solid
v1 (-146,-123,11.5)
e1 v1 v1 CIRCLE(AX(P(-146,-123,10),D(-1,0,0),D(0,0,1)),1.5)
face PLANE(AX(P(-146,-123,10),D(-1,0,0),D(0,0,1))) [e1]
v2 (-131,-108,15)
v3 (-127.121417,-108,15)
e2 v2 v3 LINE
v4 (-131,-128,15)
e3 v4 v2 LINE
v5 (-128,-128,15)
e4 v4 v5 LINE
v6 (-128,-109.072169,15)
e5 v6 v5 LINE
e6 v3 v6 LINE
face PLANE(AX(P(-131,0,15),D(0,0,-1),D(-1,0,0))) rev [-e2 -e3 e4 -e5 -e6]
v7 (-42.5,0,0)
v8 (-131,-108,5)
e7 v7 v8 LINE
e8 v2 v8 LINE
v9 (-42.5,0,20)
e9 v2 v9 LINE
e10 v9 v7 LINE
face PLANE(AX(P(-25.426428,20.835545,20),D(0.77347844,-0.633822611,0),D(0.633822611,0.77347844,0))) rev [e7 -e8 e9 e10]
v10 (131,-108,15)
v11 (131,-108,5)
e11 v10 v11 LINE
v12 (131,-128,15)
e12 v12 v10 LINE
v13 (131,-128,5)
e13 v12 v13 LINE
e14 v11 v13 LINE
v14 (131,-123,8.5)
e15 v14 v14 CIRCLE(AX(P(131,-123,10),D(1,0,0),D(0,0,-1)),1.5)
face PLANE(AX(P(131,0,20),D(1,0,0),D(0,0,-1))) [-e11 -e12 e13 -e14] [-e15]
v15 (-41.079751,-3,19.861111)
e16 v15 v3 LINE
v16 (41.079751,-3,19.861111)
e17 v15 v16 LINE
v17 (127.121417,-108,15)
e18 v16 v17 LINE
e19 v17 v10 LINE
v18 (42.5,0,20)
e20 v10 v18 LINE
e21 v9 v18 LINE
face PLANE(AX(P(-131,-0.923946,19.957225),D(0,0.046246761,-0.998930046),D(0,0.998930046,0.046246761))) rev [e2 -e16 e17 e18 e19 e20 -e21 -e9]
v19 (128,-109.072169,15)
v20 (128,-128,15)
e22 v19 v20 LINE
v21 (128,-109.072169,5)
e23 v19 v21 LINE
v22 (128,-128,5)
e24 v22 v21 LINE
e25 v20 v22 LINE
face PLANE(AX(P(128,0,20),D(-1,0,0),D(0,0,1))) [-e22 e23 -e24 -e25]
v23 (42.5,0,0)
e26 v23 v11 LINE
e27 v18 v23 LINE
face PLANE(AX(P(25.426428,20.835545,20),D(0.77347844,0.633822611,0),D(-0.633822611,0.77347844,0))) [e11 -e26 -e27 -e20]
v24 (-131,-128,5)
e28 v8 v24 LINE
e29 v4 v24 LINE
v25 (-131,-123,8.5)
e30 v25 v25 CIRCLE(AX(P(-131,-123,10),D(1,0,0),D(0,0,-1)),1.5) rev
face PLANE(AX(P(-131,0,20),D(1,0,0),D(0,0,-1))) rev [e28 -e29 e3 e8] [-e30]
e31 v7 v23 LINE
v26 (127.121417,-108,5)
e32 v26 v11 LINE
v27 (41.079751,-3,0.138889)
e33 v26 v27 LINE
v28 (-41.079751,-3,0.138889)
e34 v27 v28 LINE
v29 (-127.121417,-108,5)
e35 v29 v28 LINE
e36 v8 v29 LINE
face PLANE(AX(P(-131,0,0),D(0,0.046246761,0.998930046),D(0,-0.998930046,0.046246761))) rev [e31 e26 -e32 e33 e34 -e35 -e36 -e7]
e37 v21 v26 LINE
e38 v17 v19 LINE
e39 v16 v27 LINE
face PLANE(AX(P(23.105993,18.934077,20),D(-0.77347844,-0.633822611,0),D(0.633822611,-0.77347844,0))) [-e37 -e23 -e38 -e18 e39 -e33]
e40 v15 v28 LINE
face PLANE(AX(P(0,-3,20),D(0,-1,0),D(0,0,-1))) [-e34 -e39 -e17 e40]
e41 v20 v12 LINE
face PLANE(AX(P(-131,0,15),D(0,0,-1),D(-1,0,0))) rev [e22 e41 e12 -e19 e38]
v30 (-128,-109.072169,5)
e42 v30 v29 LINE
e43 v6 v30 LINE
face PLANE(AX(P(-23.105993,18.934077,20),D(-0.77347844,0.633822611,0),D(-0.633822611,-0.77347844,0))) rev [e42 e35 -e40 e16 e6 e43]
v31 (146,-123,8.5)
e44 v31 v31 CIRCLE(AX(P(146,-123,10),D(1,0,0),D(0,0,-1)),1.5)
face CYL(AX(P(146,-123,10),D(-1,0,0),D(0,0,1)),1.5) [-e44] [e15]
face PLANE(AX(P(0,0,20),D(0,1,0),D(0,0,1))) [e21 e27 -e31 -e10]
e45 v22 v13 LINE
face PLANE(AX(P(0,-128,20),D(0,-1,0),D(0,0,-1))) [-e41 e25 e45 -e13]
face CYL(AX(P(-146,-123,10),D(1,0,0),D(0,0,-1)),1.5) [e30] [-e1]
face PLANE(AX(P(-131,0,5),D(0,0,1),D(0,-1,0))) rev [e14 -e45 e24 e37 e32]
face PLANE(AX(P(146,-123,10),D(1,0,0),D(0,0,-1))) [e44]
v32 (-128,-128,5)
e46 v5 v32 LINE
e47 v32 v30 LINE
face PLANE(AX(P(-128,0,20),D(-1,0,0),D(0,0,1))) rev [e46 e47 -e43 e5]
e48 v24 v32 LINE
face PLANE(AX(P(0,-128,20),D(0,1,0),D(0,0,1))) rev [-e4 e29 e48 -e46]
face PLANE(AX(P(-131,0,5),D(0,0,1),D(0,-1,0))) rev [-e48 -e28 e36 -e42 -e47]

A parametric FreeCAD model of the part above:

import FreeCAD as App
import Part
import Sketcher
from FreeCAD import Vector

doc = App.newDocument("Part")
body = doc.addObject("PartDesign::Body", "Body")

# Sketch on XY plane
sketch1 = body.newObject("Sketcher::SketchObject", "Sketch")
sketch1.AttachmentSupport = (doc.getObject("XY_Plane"), [""])
sketch1.MapMode = "FlatFace"
sketch1.addGeometry(Part.LineSegment(Vector(-42.5, 0, 0), Vector(-131, -108, 0)), False)
sketch1.addGeometry(Part.LineSegment(Vector(-131, -108, 0), Vector(-131, -128, 0)), False)
sketch1.addGeometry(Part.LineSegment(Vector(-131, -128, 0), Vector(-128, -128, 0)), False)
sketch1.addGeometry(Part.LineSegment(Vector(-128, -128, 0), Vector(-128, -109.1, 0)), False)
sketch1.addGeometry(Part.LineSegment(Vector(-128, -109.1, 0), Vector(-41.1, -3, 0)), False)
sketch1.addGeometry(Part.LineSegment(Vector(-41.1, -3, 0), Vector(41.1, -3, 0)), False)
sketch1.addGeometry(Part.LineSegment(Vector(41.1, -3, 0), Vector(128, -109.1, 0)), False)
sketch1.addGeometry(Part.LineSegment(Vector(128, -109.1, 0), Vector(128, -128, 0)), False)
sketch1.addGeometry(Part.LineSegment(Vector(128, -128, 0), Vector(131, -128, 0)), False)
sketch1.addGeometry(Part.LineSegment(Vector(131, -128, 0), Vector(131, -108, 0)), False)
sketch1.addGeometry(Part.LineSegment(Vector(131, -108, 0), Vector(42.5, 0, 0)), False)
sketch1.addGeometry(Part.LineSegment(Vector(42.5, 0, 0), Vector(-42.5, 0, 0)), False)
sketch1.addConstraint(Sketcher.Constraint("Coincident", 0, 2, 1, 1))
sketch1.addConstraint(Sketcher.Constraint("Coincident", 1, 2, 2, 1))
sketch1.addConstraint(Sketcher.Constraint("Coincident", 2, 2, 3, 1))
sketch1.addConstraint(Sketcher.Constraint("Coincident", 3, 2, 4, 1))
sketch1.addConstraint(Sketcher.Constraint("Coincident", 4, 2, 5, 1))
sketch1.addConstraint(Sketcher.Constraint("Coincident", 5, 2, 6, 1))
sketch1.addConstraint(Sketcher.Constraint("Coincident", 6, 2, 7, 1))
sketch1.addConstraint(Sketcher.Constraint("Coincident", 7, 2, 8, 1))
sketch1.addConstraint(Sketcher.Constraint("Coincident", 8, 2, 9, 1))
sketch1.addConstraint(Sketcher.Constraint("Coincident", 9, 2, 10, 1))
sketch1.addConstraint(Sketcher.Constraint("Coincident", 10, 2, 11, 1))
sketch1.addConstraint(Sketcher.Constraint("Coincident", 11, 2, 0, 1))
sketch1.addConstraint(Sketcher.Constraint("Vertical", 1))
sketch1.addConstraint(Sketcher.Constraint("Horizontal", 2))
sketch1.addConstraint(Sketcher.Constraint("Vertical", 3))
sketch1.addConstraint(Sketcher.Constraint("Horizontal", 5))
sketch1.addConstraint(Sketcher.Constraint("Vertical", 7))
sketch1.addConstraint(Sketcher.Constraint("Horizontal", 8))
sketch1.addConstraint(Sketcher.Constraint("Vertical", 9))
sketch1.addConstraint(Sketcher.Constraint("Horizontal", 11))
sketch1.addConstraint(Sketcher.Constraint("Symmetric", 10, 2, 11, 2, -1, 1))
sketch1.addConstraint(Sketcher.Constraint("Symmetric", 3, 2, 6, 2, -2))
sketch1.addConstraint(Sketcher.Constraint("Symmetric", 1, 2, 8, 2, -2))
sketch1.addConstraint(Sketcher.Constraint("Parallel", 0, 4))
sketch1.addConstraint(Sketcher.Constraint("Parallel", 6, 10))
sketch1.addConstraint(Sketcher.Constraint("Horizontal", 0, 2, 9, 2))
sketch1.addConstraint(Sketcher.Constraint("DistanceX", 2, 1, 2, 2, 3.0))
sketch1.addConstraint(Sketcher.Constraint("DistanceX", 11, 2, 11, 1, 85.0))
sketch1.addConstraint(Sketcher.Constraint("DistanceY", 1, 2, 1, 1, 20.0))
sketch1.addConstraint(Sketcher.Constraint("DistanceX", 0, 2, -1, 1, 131.0))
sketch1.addConstraint(Sketcher.Constraint("DistanceY", 0, 2, -1, 1, 108.0))
sketch1.addConstraint(Sketcher.Constraint("DistanceY", 4, 2, -1, 1, 3.0))
sketch1.addConstraint(Sketcher.Constraint("DistanceX", 5, 1, 5, 2, 82.159502))
pad1 = body.newObject("PartDesign::Pad", "Pad")
pad1.Profile = sketch1
pad1.Length = 20

# Sketch on YZ plane
sketch2 = body.newObject("Sketcher::SketchObject", "Sketch001")
sketch2.AttachmentSupport = (doc.getObject("YZ_Plane"), [""])
sketch2.MapMode = "FlatFace"
sketch2.AttachmentOffset = App.Placement(Vector(0, 0, 131), App.Rotation())
sketch2.addGeometry(Part.LineSegment(Vector(-128, 20, 0), Vector(-128, 15, 0)), False)
sketch2.addGeometry(Part.LineSegment(Vector(-128, 15, 0), Vector(-108, 15, 0)), False)
sketch2.addGeometry(Part.LineSegment(Vector(-108, 15, 0), Vector(0, 20, 0)), False)
sketch2.addGeometry(Part.LineSegment(Vector(0, 20, 0), Vector(-128, 20, 0)), False)
sketch2.addGeometry(Part.LineSegment(Vector(0, 0, 0), Vector(-108, 5, 0)), False)
sketch2.addGeometry(Part.LineSegment(Vector(-108, 5, 0), Vector(-128, 5, 0)), False)
sketch2.addGeometry(Part.LineSegment(Vector(-128, 5, 0), Vector(-128, 0, 0)), False)
sketch2.addGeometry(Part.LineSegment(Vector(-128, 0, 0), Vector(0, 0, 0)), False)
sketch2.addConstraint(Sketcher.Constraint("Coincident", 0, 2, 1, 1))
sketch2.addConstraint(Sketcher.Constraint("Coincident", 1, 2, 2, 1))
sketch2.addConstraint(Sketcher.Constraint("Coincident", 2, 2, 3, 1))
sketch2.addConstraint(Sketcher.Constraint("Coincident", 3, 2, 0, 1))
sketch2.addConstraint(Sketcher.Constraint("Coincident", 4, 2, 5, 1))
sketch2.addConstraint(Sketcher.Constraint("Coincident", 5, 2, 6, 1))
sketch2.addConstraint(Sketcher.Constraint("Coincident", 6, 2, 7, 1))
sketch2.addConstraint(Sketcher.Constraint("Coincident", 7, 2, 4, 1))
sketch2.addConstraint(Sketcher.Constraint("Vertical", 0))
sketch2.addConstraint(Sketcher.Constraint("Horizontal", 1))
sketch2.addConstraint(Sketcher.Constraint("Horizontal", 3))
sketch2.addConstraint(Sketcher.Constraint("Horizontal", 5))
sketch2.addConstraint(Sketcher.Constraint("Vertical", 6))
sketch2.addConstraint(Sketcher.Constraint("Horizontal", 7))
sketch2.addConstraint(Sketcher.Constraint("Coincident", 7, 2, -1, 1))
sketch2.addConstraint(Sketcher.Constraint("PointOnObject", 2, 2, -2))
sketch2.addConstraint(Sketcher.Constraint("Vertical", 1, 2, 4, 2))
sketch2.addConstraint(Sketcher.Constraint("Vertical", 3, 2, 5, 2))
sketch2.addConstraint(Sketcher.Constraint("Equal", 0, 6))
sketch2.addConstraint(Sketcher.Constraint("DistanceX", 1, 1, 1, 2, 20.0))
sketch2.addConstraint(Sketcher.Constraint("DistanceX", 3, 2, 3, 1, 128.0))
sketch2.addConstraint(Sketcher.Constraint("DistanceY", 0, 2, 0, 1, 5.0))
sketch2.addConstraint(Sketcher.Constraint("DistanceY", -1, 1, 0, 2, 15.0))
pocket1 = body.newObject("PartDesign::Pocket", "Pocket")
pocket1.Profile = sketch2
pocket1.Type = "ThroughAll"

# Sketch on YZ plane
sketch3 = body.newObject("Sketcher::SketchObject", "Sketch002")
sketch3.AttachmentSupport = (doc.getObject("YZ_Plane"), [""])
sketch3.MapMode = "FlatFace"
sketch3.AttachmentOffset = App.Placement(Vector(0, 0, 131), App.Rotation())
sketch3.addGeometry(Part.Circle(Vector(-123, 10, 0), Vector(0, 0, 1), 1.5), False)
sketch3.addConstraint(Sketcher.Constraint("Diameter", 0, 3.0))
sketch3.addConstraint(Sketcher.Constraint("DistanceX", 0, 3, -1, 1, 123.0))
sketch3.addConstraint(Sketcher.Constraint("DistanceY", -1, 1, 0, 3, 10.0))
pad2 = body.newObject("PartDesign::Pad", "Pad001")
pad2.Profile = sketch3
pad2.Length = 15

# Sketch on YZ plane
sketch4 = body.newObject("Sketcher::SketchObject", "Sketch003")
sketch4.AttachmentSupport = (doc.getObject("YZ_Plane"), [""])
sketch4.MapMode = "FlatFace"
sketch4.AttachmentOffset = App.Placement(Vector(0, 0, -146), App.Rotation())
sketch4.addGeometry(Part.Circle(Vector(-123, 10, 0), Vector(0, 0, 1), 1.5), False)
sketch4.addConstraint(Sketcher.Constraint("Diameter", 0, 3.0))
sketch4.addConstraint(Sketcher.Constraint("DistanceX", 0, 3, -1, 1, 123.0))
sketch4.addConstraint(Sketcher.Constraint("DistanceY", -1, 1, 0, 3, 10.0))
pad3 = body.newObject("PartDesign::Pad", "Pad002")
pad3.Profile = sketch4
pad3.Length = 15

doc.recompute()
